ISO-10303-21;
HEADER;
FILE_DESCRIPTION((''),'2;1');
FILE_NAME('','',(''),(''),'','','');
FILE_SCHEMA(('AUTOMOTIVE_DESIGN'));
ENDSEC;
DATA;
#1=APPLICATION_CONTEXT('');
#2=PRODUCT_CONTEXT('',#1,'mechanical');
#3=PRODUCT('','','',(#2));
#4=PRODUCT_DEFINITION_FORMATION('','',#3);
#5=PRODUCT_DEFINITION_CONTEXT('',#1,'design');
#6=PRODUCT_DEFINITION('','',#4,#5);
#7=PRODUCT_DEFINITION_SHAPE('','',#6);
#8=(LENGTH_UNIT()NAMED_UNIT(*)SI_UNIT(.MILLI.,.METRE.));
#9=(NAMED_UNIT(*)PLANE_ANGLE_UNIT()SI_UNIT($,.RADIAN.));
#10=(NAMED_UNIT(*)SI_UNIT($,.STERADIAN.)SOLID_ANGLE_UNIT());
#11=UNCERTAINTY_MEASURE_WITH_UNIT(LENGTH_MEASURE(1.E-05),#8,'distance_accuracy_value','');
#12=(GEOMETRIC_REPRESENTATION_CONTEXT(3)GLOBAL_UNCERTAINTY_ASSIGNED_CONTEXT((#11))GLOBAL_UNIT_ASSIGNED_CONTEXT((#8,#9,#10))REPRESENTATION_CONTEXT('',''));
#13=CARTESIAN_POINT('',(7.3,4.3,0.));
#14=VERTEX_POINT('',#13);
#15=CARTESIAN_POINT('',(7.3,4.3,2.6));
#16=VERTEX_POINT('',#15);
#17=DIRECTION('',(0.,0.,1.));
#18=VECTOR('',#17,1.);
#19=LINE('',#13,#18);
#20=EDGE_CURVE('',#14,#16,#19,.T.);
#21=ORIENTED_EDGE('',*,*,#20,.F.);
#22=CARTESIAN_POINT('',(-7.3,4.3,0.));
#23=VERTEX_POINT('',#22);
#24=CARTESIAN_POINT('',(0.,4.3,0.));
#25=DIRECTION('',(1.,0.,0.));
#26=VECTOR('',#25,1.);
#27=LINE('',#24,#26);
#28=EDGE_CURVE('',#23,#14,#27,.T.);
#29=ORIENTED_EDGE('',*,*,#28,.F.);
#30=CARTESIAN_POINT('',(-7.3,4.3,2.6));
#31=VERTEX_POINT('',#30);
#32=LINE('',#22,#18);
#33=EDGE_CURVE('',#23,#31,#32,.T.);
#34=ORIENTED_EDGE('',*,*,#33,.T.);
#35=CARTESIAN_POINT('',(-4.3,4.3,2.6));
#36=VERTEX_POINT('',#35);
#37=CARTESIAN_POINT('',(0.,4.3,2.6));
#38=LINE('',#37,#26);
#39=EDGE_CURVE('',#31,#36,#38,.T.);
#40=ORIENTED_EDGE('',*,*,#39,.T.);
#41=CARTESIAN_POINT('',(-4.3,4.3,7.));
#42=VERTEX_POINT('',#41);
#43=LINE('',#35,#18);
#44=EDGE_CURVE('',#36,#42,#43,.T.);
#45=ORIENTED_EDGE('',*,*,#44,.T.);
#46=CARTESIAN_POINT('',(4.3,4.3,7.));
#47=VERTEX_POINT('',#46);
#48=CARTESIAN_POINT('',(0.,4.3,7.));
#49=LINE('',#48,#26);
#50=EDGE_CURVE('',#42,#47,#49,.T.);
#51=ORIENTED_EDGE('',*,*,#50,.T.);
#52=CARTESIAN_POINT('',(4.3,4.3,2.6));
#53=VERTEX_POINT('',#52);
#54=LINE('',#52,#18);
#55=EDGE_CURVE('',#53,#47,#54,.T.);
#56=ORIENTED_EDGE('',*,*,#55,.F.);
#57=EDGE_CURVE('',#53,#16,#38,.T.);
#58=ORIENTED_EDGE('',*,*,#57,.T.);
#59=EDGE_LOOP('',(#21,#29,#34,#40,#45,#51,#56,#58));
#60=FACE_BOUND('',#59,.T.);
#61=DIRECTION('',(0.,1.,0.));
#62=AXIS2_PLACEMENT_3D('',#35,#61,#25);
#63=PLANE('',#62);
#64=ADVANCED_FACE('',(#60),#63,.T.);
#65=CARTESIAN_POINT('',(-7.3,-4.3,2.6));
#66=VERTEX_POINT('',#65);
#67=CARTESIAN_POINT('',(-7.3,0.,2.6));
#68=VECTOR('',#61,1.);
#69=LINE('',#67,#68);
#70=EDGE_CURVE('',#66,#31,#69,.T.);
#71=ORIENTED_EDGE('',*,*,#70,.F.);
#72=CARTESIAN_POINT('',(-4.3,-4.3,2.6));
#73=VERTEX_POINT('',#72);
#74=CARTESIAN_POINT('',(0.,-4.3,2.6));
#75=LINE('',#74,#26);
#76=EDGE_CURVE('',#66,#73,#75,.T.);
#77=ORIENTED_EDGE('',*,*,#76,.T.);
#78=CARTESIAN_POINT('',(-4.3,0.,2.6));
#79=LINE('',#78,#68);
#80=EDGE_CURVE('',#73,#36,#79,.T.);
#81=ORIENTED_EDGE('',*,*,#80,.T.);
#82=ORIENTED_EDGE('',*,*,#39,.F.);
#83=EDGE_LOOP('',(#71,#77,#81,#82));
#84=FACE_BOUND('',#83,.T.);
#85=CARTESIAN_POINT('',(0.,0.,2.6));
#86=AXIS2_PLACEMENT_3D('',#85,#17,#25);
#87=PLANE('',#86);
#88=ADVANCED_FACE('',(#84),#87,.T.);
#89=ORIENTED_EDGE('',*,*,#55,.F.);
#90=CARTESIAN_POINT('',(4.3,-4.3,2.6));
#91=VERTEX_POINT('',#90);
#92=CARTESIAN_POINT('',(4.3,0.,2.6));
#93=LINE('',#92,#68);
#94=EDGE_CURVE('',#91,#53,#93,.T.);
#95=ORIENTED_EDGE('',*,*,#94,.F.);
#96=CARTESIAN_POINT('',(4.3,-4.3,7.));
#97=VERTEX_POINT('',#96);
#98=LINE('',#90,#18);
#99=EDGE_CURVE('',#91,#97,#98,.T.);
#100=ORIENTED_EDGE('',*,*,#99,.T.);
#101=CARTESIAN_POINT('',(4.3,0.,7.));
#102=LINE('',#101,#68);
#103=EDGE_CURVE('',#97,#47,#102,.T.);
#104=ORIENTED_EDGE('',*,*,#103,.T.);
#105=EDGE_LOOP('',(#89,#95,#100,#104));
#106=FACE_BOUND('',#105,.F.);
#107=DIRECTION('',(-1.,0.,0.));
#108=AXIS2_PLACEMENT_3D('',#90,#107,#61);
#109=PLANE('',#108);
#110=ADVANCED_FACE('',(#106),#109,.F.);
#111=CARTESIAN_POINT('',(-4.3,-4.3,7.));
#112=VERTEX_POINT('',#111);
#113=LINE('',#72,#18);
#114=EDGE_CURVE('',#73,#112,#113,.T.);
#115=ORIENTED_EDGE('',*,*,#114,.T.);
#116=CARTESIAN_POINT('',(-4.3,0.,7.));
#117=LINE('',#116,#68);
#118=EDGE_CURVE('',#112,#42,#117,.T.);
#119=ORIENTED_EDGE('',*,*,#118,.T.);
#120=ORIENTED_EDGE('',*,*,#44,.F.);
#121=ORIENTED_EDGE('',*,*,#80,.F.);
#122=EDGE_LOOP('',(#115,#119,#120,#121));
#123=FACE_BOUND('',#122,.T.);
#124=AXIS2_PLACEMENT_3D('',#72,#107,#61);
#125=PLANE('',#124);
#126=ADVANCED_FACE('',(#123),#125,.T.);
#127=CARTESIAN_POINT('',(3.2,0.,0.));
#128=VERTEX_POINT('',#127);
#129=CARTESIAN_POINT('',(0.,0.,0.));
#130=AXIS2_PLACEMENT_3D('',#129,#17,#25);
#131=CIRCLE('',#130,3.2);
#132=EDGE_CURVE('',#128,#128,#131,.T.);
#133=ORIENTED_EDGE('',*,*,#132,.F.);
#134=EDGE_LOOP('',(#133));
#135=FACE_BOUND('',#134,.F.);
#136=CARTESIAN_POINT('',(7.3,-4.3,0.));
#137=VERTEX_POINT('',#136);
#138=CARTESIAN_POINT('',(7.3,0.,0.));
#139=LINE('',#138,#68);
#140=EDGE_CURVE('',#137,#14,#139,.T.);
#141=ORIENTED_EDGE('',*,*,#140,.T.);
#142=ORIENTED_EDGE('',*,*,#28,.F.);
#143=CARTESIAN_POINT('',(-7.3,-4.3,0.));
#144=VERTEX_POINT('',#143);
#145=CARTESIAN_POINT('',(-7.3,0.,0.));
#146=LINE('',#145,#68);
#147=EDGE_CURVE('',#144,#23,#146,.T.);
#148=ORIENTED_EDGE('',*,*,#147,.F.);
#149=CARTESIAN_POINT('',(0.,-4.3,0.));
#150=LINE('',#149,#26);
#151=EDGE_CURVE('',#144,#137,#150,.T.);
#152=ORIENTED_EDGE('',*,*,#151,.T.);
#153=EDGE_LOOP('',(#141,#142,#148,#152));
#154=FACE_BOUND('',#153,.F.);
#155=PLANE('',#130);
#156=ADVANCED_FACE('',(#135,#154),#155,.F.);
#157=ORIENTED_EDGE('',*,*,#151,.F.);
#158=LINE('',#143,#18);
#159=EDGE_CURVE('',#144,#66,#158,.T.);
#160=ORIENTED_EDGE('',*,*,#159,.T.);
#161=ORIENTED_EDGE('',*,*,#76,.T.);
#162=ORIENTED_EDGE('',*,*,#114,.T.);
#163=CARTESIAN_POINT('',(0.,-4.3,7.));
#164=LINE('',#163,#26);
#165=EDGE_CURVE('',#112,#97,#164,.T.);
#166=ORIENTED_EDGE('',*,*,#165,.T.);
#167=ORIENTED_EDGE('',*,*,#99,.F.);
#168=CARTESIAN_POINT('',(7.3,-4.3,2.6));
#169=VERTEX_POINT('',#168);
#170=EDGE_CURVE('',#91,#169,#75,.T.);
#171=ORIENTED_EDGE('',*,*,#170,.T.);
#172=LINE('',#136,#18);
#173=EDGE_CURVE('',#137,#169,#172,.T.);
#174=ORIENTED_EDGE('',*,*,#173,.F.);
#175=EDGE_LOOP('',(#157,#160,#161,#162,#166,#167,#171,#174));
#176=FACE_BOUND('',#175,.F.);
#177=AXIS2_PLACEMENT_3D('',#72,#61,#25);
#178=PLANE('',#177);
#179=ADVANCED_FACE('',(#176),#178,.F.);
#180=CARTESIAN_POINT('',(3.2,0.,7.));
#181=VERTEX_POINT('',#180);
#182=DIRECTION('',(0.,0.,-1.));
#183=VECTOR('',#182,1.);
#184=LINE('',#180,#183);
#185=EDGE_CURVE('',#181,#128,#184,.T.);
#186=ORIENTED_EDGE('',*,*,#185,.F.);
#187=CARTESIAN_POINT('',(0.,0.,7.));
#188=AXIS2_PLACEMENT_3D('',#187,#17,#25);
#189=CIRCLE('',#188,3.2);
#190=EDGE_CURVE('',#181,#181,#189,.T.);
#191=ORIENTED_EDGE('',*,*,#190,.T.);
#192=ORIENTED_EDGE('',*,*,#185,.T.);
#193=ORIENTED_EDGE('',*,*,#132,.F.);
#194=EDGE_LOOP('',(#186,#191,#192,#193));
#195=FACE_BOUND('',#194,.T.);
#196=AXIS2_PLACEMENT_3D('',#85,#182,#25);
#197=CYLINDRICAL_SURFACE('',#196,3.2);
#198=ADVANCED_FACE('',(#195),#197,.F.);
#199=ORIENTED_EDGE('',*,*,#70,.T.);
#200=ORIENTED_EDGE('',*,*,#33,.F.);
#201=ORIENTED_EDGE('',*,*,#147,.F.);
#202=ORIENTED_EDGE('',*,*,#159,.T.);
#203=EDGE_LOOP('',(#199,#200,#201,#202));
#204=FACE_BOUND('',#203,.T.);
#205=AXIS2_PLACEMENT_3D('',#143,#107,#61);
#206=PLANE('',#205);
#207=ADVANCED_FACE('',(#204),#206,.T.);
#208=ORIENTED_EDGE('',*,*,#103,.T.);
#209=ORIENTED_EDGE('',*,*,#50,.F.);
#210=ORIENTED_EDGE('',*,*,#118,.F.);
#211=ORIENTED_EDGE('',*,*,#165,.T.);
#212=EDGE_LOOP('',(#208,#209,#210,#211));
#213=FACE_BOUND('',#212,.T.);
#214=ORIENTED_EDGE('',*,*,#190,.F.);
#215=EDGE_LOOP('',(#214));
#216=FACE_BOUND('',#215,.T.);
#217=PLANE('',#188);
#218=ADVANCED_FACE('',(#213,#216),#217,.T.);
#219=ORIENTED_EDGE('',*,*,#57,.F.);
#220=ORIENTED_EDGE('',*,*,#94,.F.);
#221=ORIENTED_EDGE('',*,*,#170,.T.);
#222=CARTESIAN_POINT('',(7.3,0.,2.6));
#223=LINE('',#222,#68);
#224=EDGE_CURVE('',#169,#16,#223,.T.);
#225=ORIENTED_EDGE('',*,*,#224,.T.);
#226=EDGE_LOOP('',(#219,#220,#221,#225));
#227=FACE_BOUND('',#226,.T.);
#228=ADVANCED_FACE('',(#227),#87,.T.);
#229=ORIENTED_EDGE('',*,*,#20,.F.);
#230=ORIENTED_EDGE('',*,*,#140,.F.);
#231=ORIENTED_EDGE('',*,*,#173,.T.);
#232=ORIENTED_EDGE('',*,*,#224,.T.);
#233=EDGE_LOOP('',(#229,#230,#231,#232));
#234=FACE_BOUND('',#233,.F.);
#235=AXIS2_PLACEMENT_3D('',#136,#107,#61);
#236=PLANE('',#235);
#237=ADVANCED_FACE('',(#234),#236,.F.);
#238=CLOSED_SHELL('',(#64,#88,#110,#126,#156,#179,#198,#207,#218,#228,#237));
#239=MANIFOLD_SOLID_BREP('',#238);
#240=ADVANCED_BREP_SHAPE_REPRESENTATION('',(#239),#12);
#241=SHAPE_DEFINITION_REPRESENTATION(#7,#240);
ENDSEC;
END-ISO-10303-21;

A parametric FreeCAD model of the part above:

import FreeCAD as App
import Part
import Sketcher
from FreeCAD import Vector

doc = App.newDocument("Part")
body = doc.addObject("PartDesign::Body", "Body")

sketch1 = body.newObject("Sketcher::SketchObject", "Sketch")
sketch1.AttachmentSupport = (doc.getObject("XY_Plane"), [""])
sketch1.MapMode = "FlatFace"
sketch1.addGeometry([
    Part.LineSegment(Vector(-7.3, 4.3, 0), Vector(-7.3, -4.3, 0)),
    Part.LineSegment(Vector(-7.3, -4.3, 0), Vector(7.3, -4.3, 0)),
    Part.LineSegment(Vector(7.3, -4.3, 0), Vector(7.3, 4.3, 0)),
    Part.LineSegment(Vector(7.3, 4.3, 0), Vector(-7.3, 4.3, 0)),
    Part.Circle(Vector(0, 0, 0), Vector(0, 0, 1), 3.2),
], False)
sketch1.addConstraint([
    Sketcher.Constraint("Coincident", 0, 2, 1, 1),
    Sketcher.Constraint("Coincident", 1, 2, 2, 1),
    Sketcher.Constraint("Coincident", 2, 2, 3, 1),
    Sketcher.Constraint("Coincident", 3, 2, 0, 1),
    Sketcher.Constraint("Vertical", 0),
    Sketcher.Constraint("Horizontal", 1),
    Sketcher.Constraint("Vertical", 2),
    Sketcher.Constraint("Horizontal", 3),
    Sketcher.Constraint("Coincident", 4, 3, -1, 1),
    Sketcher.Constraint("Symmetric", 0, 2, 2, 2, -1, 1),
    Sketcher.Constraint("Diameter", 4, 6.4),
    Sketcher.Constraint("DistanceX", 1, 1, 1, 2, 14.6),
    Sketcher.Constraint("DistanceY", 0, 2, 0, 1, 8.6),
])
pad1 = body.newObject("PartDesign::Pad", "Pad")
pad1.Profile = sketch1
pad1.Length = 2.6

sketch2 = body.newObject("Sketcher::SketchObject", "Sketch001")
sketch2.AttachmentSupport = (doc.getObject("XY_Plane"), [""])
sketch2.MapMode = "FlatFace"
sketch2.AttachmentOffset = App.Placement(Vector(0, 0, 2.6), App.Rotation())
sketch2.addGeometry([
    Part.LineSegment(Vector(-4.3, 4.3, 0), Vector(-4.3, -4.3, 0)),
    Part.LineSegment(Vector(-4.3, -4.3, 0), Vector(4.3, -4.3, 0)),
    Part.LineSegment(Vector(4.3, -4.3, 0), Vector(4.3, 4.3, 0)),
    Part.LineSegment(Vector(4.3, 4.3, 0), Vector(-4.3, 4.3, 0)),
    Part.Circle(Vector(0, 0, 0), Vector(0, 0, 1), 3.2),
], False)
sketch2.addConstraint([
    Sketcher.Constraint("Coincident", 0, 2, 1, 1),
    Sketcher.Constraint("Coincident", 1, 2, 2, 1),
    Sketcher.Constraint("Coincident", 2, 2, 3, 1),
    Sketcher.Constraint("Coincident", 3, 2, 0, 1),
    Sketcher.Constraint("Vertical", 0),
    Sketcher.Constraint("Horizontal", 1),
    Sketcher.Constraint("Vertical", 2),
    Sketcher.Constraint("Horizontal", 3),
    Sketcher.Constraint("Coincident", 4, 3, -1, 1),
    Sketcher.Constraint("Symmetric", 0, 2, 2, 2, -1, 1),
    Sketcher.Constraint("Equal", 3, 0),
    Sketcher.Constraint("Diameter", 4, 6.4),
    Sketcher.Constraint("DistanceX", 1, 1, 1, 2, 8.6),
])
pad2 = body.newObject("PartDesign::Pad", "Pad001")
pad2.Profile = sketch2
pad2.Length = 4.4

doc.recompute()
